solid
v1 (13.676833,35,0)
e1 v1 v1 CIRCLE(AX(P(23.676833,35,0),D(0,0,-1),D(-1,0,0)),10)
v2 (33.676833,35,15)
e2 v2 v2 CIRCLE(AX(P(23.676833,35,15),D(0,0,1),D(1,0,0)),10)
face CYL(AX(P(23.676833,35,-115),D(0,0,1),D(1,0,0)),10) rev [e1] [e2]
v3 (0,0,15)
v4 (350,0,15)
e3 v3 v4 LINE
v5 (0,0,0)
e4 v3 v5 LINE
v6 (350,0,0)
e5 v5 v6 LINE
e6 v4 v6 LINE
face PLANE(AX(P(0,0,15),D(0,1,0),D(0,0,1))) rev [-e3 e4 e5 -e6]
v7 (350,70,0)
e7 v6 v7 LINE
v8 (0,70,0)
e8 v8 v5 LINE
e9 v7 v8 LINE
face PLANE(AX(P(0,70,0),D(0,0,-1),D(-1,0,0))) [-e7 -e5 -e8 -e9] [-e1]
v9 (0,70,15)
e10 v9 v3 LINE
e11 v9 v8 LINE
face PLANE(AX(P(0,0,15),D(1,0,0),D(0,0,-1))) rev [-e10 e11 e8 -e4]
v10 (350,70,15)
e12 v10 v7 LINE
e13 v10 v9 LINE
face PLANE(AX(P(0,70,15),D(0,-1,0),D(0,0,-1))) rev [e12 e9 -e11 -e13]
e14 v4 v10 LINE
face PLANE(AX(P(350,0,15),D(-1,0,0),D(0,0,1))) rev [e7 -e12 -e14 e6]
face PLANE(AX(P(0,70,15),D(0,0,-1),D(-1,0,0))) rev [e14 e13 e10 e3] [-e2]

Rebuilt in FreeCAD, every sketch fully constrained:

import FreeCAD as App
import Part
import Sketcher
from FreeCAD import Vector
Q = App.Units.Quantity

doc = App.newDocument("Part")
body = doc.addObject("PartDesign::Body", "Body")

sketch1 = doc.addObject("Sketcher::SketchObject", "Sketch")
body.addObject(sketch1)
sketch1.AttachmentSupport = (doc.XY_Plane, [""])
sketch1.MapMode = "FlatFace"
sketch1.addGeometry(Part.LineSegment(Vector(0, 70, 0), Vector(0, 0, 0)), False)
sketch1.addGeometry(Part.LineSegment(Vector(0, 0, 0), Vector(350, 0, 0)), False)
sketch1.addGeometry(Part.LineSegment(Vector(350, 0, 0), Vector(350, 70, 0)), False)
sketch1.addGeometry(Part.LineSegment(Vector(350, 70, 0), Vector(0, 70, 0)), False)
sketch1.addConstraint(Sketcher.Constraint("Coincident", 0, 2, 1, 1))
sketch1.addConstraint(Sketcher.Constraint("Coincident", 1, 2, 2, 1))
sketch1.addConstraint(Sketcher.Constraint("Coincident", 2, 2, 3, 1))
sketch1.addConstraint(Sketcher.Constraint("Coincident", 3, 2, 0, 1))
sketch1.addConstraint(Sketcher.Constraint("Vertical", 0))
sketch1.addConstraint(Sketcher.Constraint("Horizontal", 1))
sketch1.addConstraint(Sketcher.Constraint("Vertical", 2))
sketch1.addConstraint(Sketcher.Constraint("Horizontal", 3))
sketch1.addConstraint(Sketcher.Constraint("Coincident", 0, 2, -1, 1))
sketch1.addConstraint(Sketcher.Constraint("DistanceX", 1, 1, 1, 2, Q("350 mm")))
sketch1.addConstraint(Sketcher.Constraint("DistanceY", 0, 2, 0, 1, Q("70 mm")))
pad1 = doc.addObject("PartDesign::Pad", "Pad")
body.addObject(pad1)
pad1.Profile = sketch1
pad1.Length = 15

sketch2 = doc.addObject("Sketcher::SketchObject", "Sketch001")
body.addObject(sketch2)
sketch2.AttachmentSupport = (doc.XY_Plane, [""])
sketch2.MapMode = "FlatFace"
sketch2.AttachmentOffset = App.Placement(Vector(0, 0, 15), App.Rotation())
sketch2.addGeometry(Part.Circle(Vector(23.676833, 35, 0), Vector(0, 0, 1), 10), False)
sketch2.addConstraint(Sketcher.Constraint("Diameter", 0, Q("20 mm")))
sketch2.addConstraint(Sketcher.Constraint("DistanceY", -1, 1, 0, 3, Q("35 mm")))
sketch2.addConstraint(Sketcher.Constraint("DistanceX", -1, 1, 0, 3, Q("23.676833 mm")))
pocket1 = doc.addObject("PartDesign::Pocket", "Pocket")
body.addObject(pocket1)
pocket1.Profile = sketch2
pocket1.Length = 130

doc.recompute()
